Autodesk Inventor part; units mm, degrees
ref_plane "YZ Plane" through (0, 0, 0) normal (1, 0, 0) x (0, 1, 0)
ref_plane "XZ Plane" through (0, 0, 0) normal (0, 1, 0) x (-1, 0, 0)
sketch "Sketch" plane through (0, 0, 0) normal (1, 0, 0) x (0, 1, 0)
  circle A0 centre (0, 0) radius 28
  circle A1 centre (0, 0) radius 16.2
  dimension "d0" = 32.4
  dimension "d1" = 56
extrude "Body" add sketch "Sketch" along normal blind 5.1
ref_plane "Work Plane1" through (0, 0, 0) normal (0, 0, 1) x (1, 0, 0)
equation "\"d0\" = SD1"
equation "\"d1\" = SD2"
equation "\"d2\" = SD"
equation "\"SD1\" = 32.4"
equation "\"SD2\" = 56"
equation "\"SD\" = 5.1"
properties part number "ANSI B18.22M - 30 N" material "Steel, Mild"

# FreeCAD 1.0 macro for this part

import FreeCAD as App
import Part
import Sketcher
from FreeCAD import Vector
Q = App.Units.Quantity

doc = App.newDocument("Part")
body = doc.addObject("PartDesign::Body", "Body")

# Sketch on YZ plane
sketch1 = body.newObject("Sketcher::SketchObject", "Sketch")
sketch1.AttachmentSupport = (doc.getObject("YZ_Plane"), [""])
sketch1.MapMode = "FlatFace"
sketch1.addGeometry([
    Part.Circle(Vector(0, 0, 0), Vector(0, 0, 1), 28),
    Part.Circle(Vector(0, 0, 0), Vector(0, 0, 1), 16),
], False)
sketch1.addConstraint([
    Sketcher.Constraint("Coincident", 0, 3, -1, 1),
    Sketcher.Constraint("Coincident", 1, 3, -1, 1),
    Sketcher.Constraint("Diameter", 0, Q("56 mm")),
    Sketcher.Constraint("Diameter", 1, Q("32.4 mm")),
])
pad1 = body.newObject("PartDesign::Pad", "Pad")
pad1.Profile = sketch1
pad1.Length = 5.1

doc.recompute()
